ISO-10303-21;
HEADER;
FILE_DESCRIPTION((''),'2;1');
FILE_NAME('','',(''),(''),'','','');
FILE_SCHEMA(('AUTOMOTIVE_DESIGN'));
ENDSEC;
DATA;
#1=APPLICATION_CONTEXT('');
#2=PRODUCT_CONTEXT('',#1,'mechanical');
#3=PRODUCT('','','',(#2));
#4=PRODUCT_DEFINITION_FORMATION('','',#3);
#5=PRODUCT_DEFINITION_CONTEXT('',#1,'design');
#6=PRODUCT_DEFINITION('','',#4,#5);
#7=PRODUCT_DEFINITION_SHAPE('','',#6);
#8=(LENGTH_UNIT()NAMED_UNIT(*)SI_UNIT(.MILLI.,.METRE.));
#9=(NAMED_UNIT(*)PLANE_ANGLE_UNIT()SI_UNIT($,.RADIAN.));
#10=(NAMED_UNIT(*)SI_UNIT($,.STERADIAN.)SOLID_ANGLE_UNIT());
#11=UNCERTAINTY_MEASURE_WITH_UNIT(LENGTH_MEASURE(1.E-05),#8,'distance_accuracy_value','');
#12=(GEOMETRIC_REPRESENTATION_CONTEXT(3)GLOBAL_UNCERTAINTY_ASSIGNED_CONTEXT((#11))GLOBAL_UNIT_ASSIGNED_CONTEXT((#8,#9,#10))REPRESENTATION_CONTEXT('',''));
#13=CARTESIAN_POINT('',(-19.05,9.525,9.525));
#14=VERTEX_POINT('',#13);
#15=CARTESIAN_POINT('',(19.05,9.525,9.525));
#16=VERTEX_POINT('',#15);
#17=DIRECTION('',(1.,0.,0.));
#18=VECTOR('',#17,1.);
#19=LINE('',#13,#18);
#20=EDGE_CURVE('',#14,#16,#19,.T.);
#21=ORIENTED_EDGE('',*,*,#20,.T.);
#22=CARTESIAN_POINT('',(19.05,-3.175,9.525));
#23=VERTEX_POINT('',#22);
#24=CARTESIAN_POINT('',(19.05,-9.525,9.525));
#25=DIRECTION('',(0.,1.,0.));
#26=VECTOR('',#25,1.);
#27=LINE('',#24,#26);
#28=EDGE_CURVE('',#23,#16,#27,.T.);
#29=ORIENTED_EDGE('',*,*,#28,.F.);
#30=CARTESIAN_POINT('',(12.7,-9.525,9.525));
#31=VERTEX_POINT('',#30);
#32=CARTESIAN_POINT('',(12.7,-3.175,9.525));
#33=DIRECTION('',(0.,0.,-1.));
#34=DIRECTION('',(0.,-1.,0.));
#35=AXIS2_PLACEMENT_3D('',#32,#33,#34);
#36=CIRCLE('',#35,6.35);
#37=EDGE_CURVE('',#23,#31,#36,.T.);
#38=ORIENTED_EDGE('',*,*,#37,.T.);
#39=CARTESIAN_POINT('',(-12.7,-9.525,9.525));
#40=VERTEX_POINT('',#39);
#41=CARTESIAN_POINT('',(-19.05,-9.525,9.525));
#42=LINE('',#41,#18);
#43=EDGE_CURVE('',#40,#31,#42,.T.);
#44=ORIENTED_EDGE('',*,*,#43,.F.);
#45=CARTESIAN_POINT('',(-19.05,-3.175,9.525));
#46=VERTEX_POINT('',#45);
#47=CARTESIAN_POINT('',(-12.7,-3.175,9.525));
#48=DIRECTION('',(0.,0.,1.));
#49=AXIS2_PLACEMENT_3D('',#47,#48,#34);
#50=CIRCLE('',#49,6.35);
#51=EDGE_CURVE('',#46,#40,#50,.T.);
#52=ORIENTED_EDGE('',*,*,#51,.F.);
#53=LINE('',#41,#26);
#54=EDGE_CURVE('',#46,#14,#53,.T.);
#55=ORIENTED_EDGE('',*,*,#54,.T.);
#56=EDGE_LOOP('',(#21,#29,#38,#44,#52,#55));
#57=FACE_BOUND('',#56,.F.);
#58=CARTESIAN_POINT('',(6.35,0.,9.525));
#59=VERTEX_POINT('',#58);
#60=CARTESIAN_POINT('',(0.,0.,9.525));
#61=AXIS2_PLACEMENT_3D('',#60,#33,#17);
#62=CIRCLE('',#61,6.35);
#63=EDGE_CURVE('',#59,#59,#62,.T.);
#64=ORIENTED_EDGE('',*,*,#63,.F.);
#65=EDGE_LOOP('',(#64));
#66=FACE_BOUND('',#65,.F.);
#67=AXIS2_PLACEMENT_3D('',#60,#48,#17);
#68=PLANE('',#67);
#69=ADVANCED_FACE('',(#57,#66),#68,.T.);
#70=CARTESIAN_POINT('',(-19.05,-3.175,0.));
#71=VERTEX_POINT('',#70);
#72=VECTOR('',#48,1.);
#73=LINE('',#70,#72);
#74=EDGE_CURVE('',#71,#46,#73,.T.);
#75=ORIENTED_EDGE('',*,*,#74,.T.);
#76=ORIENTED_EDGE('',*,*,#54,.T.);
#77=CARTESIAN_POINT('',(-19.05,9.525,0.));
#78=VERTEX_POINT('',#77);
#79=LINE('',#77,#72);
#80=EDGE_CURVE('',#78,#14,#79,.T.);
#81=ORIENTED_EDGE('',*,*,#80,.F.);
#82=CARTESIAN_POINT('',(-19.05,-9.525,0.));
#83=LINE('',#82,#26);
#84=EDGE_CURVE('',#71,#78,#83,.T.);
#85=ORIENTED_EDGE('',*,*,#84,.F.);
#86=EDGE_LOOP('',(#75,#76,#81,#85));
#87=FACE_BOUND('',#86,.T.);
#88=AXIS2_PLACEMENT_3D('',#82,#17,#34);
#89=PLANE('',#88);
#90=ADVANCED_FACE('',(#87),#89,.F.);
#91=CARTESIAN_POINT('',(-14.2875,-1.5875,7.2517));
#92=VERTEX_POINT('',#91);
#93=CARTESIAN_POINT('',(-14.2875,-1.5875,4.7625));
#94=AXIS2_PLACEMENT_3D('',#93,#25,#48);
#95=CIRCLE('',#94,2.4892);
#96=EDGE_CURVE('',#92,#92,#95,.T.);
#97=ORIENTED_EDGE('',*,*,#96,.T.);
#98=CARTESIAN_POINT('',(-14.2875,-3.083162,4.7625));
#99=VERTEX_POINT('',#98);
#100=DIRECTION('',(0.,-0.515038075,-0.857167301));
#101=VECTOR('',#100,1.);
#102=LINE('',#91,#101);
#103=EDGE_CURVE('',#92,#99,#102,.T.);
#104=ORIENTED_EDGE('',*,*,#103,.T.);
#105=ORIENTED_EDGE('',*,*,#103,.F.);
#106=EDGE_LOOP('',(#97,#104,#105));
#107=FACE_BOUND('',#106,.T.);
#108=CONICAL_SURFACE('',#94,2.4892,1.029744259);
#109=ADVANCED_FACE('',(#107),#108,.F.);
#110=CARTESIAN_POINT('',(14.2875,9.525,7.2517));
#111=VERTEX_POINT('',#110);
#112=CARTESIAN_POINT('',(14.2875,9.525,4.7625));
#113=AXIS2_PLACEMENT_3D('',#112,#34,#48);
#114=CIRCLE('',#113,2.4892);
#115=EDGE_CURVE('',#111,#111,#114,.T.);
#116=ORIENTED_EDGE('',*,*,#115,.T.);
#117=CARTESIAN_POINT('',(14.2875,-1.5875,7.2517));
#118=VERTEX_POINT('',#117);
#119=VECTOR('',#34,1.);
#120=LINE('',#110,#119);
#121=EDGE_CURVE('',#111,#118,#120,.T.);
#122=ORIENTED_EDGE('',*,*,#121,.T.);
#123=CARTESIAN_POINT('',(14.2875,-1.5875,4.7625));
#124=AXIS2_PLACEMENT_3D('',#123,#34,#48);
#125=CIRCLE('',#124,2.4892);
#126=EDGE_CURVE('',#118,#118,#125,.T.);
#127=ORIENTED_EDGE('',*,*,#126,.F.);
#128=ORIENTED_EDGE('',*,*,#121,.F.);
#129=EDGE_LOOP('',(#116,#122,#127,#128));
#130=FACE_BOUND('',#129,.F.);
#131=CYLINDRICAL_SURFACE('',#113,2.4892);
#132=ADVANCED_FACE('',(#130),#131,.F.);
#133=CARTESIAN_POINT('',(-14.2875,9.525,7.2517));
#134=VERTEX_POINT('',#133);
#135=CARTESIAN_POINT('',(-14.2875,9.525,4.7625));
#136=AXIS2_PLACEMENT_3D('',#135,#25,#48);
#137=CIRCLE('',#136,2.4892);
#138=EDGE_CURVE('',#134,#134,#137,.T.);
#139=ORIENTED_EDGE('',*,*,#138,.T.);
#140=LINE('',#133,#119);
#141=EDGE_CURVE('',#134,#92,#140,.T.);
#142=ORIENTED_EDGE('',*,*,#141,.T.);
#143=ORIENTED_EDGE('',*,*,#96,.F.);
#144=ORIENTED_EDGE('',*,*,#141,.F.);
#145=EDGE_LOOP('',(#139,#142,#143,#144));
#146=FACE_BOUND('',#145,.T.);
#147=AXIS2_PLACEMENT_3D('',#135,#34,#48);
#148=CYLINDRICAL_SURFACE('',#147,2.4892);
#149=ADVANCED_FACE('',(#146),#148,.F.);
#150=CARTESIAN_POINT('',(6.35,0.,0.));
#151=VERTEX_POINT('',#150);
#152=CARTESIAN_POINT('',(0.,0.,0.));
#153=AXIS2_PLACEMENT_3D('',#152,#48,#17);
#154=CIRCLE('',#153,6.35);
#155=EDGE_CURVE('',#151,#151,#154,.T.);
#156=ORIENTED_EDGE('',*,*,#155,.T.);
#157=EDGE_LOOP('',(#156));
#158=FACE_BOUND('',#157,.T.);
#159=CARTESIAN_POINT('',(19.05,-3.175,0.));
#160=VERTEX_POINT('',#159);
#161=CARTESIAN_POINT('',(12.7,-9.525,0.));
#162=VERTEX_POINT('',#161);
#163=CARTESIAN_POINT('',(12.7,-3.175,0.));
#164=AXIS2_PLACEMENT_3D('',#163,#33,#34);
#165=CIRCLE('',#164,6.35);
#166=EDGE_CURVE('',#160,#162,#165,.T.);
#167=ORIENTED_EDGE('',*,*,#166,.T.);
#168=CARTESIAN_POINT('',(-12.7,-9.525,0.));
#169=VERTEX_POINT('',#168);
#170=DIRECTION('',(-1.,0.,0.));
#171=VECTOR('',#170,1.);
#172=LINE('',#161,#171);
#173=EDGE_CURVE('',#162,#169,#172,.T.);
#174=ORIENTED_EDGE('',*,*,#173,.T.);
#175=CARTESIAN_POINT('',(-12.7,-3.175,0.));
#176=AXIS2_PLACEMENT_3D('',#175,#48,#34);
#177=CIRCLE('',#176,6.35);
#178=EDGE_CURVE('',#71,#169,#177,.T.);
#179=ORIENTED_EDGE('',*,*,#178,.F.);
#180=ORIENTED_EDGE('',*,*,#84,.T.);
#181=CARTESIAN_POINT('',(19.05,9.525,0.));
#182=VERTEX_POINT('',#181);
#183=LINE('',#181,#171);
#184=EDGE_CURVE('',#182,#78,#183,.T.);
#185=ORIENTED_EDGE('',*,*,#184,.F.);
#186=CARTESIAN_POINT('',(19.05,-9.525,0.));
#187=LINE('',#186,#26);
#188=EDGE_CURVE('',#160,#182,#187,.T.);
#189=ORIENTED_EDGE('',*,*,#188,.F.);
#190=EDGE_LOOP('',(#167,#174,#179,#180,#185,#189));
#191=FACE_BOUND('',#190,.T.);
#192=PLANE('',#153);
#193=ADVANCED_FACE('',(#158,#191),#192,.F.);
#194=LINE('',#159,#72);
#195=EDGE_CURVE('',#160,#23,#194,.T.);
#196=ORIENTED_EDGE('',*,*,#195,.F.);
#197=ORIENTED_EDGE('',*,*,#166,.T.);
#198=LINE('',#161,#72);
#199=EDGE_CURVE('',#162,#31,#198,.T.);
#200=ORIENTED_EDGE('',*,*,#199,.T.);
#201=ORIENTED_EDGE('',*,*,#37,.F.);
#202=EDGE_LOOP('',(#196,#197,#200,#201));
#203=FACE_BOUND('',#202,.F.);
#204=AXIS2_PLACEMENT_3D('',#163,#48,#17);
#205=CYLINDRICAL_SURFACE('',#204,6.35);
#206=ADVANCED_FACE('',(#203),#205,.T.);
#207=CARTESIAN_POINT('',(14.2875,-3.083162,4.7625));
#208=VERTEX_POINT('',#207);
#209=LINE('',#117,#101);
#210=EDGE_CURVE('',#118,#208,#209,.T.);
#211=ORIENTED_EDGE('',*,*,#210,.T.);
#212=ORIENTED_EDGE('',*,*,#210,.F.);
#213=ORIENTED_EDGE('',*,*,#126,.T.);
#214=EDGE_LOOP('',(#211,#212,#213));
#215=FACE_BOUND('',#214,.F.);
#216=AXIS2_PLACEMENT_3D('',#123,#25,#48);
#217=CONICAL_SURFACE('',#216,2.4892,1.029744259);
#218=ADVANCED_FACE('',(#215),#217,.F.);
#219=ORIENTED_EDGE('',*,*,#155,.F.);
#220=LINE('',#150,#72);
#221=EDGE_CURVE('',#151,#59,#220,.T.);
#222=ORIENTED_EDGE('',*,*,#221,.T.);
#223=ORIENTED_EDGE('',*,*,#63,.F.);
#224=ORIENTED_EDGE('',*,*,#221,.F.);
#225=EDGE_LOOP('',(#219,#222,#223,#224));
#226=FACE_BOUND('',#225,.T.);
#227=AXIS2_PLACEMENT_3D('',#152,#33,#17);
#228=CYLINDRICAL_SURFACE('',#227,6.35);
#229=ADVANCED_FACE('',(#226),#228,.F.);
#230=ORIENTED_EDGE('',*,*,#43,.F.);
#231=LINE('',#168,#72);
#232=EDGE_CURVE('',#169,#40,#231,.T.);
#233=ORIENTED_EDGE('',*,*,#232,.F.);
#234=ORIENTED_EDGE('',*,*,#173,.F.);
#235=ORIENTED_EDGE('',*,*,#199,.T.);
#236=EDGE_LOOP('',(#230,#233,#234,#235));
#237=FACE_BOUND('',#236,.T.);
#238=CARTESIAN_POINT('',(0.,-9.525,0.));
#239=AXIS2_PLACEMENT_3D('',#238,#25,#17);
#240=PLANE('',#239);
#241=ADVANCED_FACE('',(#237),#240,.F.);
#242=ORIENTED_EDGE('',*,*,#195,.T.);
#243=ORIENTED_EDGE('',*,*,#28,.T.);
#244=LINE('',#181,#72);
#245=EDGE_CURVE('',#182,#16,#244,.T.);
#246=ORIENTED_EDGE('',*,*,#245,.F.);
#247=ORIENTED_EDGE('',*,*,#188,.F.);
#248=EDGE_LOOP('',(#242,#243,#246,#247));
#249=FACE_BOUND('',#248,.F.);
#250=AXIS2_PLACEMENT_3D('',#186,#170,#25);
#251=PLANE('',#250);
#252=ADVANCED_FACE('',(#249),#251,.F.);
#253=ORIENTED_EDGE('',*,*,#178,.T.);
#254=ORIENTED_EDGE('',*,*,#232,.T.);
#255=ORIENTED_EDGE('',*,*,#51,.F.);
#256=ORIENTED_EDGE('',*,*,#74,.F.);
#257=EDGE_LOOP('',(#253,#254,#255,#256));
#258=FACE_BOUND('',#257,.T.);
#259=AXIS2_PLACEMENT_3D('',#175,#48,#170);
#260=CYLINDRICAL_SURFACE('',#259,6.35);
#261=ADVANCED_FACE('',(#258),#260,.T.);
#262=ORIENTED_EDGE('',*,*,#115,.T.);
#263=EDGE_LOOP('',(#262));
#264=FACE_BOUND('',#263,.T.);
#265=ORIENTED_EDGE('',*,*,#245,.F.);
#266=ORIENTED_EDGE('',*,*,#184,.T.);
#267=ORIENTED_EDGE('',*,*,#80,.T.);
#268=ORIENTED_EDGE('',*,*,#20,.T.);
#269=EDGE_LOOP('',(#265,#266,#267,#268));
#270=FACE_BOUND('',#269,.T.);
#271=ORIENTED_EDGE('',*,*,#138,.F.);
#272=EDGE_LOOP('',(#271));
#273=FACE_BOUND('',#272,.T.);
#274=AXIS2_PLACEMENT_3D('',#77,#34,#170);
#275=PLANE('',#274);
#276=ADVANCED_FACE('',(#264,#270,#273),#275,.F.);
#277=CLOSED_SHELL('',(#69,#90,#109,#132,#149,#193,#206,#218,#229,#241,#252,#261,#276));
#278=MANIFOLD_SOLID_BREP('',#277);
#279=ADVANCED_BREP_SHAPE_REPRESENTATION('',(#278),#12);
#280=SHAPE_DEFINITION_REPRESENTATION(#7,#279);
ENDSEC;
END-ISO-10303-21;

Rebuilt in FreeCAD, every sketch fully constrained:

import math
import FreeCAD as App
import Part
import Sketcher
Q = App.Units.Quantity


def edges_at(feature, points):
    """Names of the edges that pass closest to the given points."""
    edges = feature.Shape.Edges
    near = lambda p: min(range(len(edges)), key=lambda i: edges[i].distToShape(Part.Vertex(*p))[0])
    return sorted({f"Edge{near(p) + 1}" for p in points})

doc = App.newDocument("Part")
body = doc.addObject("PartDesign::Body", "Body")

# Sketch on XY plane
sketch1 = body.newObject("Sketcher::SketchObject", "Sketch")
sketch1.AttachmentSupport = (doc.getObject("XY_Plane"), [""])
sketch1.MapMode = "FlatFace"
sketch1.addGeometry([
    Part.LineSegment(App.Vector(19.05, 9.525, 0), App.Vector(0, 9.525, 0)),  # 0
    Part.ArcOfCircle(Part.Circle(App.Vector(0, 0, 0), App.Vector(0, 0, 1), 9.525), math.radians(90), math.radians(270)),  # 1
    Part.LineSegment(App.Vector(0, -9.525, 0), App.Vector(19.05, -9.525, 0)),  # 2
    Part.LineSegment(App.Vector(19.05, -9.525, 0), App.Vector(19.05, 9.525, 0)),  # 3
    Part.Circle(App.Vector(0, 0, 0), App.Vector(0, 0, 1), 6.35),  # 4
], False)
sketch1.addConstraint([
    Sketcher.Constraint("Tangent", 0, 2, 1, 1),
    Sketcher.Constraint("Tangent", 1, 2, 2, 1),
    Sketcher.Constraint("Coincident", 2, 2, 3, 1),
    Sketcher.Constraint("Coincident", 3, 2, 0, 1),
    Sketcher.Constraint("Horizontal", 0),
    Sketcher.Constraint("Horizontal", 2),
    Sketcher.Constraint("Vertical", 3),
    Sketcher.Constraint("Coincident", 1, 3, -1, 1),
    Sketcher.Constraint("Coincident", 4, 3, -1, 1),
    Sketcher.Constraint("Equal", 2, 3),
    Sketcher.Constraint("Diameter", 4, Q("0.5 in")),
    Sketcher.Constraint("Radius", 1, Q("0.375 in")),
])
pad1 = body.newObject("PartDesign::Pad", "Pad")
pad1.Profile = sketch1
pad1.Length = Q("0.375 in")
doc.recompute()

fillet = body.newObject("PartDesign::Fillet", "Fillet")
fillet.Base = (pad1, edges_at(pad1, [(19.05, -9.525, 4.763)]))
fillet.Radius = Q("0.25 in")

# Sketch on XZ plane
sketch2 = body.newObject("Sketcher::SketchObject", "Sketch001")
sketch2.AttachmentSupport = (doc.getObject("XZ_Plane"), [""])
sketch2.MapMode = "FlatFace"
sketch2.AttachmentOffset = App.Placement(App.Vector(0, 0, -0.375 * 25.4), App.Rotation())
sketch2.addGeometry(Part.Circle(App.Vector(14.2875, 4.7625, 0), App.Vector(0, 0, 1), 2.4892), False)
sketch2.addConstraint([
    Sketcher.Constraint("Diameter", 0, Q("0.196 in")),
    Sketcher.Constraint("DistanceX", -1, 1, 0, 3, Q("0.5625 in")),
    Sketcher.Constraint("DistanceY", -1, 1, 0, 3, Q("0.1875 in")),
])
doc.recompute()
hole = body.newObject("PartDesign::Hole", "Hole")
hole.Profile = sketch2
hole.ThreadType = "None"
hole.Diameter = Q("0.196 in")
hole.DepthType = "Dimension"
hole.Depth = Q("0.4375 in")
hole.DrillPoint = "Angled"
hole.DrillPointAngle = 118
hole.Reversed = True
doc.recompute()

mirrored = body.newObject("PartDesign::Mirrored", "Mirrored")
mirrored.Originals = [pad1, hole, fillet]
mirrored.MirrorPlane = (doc.getObject("YZ_Plane"), [""])
body.Tip = mirrored

doc.recompute()
